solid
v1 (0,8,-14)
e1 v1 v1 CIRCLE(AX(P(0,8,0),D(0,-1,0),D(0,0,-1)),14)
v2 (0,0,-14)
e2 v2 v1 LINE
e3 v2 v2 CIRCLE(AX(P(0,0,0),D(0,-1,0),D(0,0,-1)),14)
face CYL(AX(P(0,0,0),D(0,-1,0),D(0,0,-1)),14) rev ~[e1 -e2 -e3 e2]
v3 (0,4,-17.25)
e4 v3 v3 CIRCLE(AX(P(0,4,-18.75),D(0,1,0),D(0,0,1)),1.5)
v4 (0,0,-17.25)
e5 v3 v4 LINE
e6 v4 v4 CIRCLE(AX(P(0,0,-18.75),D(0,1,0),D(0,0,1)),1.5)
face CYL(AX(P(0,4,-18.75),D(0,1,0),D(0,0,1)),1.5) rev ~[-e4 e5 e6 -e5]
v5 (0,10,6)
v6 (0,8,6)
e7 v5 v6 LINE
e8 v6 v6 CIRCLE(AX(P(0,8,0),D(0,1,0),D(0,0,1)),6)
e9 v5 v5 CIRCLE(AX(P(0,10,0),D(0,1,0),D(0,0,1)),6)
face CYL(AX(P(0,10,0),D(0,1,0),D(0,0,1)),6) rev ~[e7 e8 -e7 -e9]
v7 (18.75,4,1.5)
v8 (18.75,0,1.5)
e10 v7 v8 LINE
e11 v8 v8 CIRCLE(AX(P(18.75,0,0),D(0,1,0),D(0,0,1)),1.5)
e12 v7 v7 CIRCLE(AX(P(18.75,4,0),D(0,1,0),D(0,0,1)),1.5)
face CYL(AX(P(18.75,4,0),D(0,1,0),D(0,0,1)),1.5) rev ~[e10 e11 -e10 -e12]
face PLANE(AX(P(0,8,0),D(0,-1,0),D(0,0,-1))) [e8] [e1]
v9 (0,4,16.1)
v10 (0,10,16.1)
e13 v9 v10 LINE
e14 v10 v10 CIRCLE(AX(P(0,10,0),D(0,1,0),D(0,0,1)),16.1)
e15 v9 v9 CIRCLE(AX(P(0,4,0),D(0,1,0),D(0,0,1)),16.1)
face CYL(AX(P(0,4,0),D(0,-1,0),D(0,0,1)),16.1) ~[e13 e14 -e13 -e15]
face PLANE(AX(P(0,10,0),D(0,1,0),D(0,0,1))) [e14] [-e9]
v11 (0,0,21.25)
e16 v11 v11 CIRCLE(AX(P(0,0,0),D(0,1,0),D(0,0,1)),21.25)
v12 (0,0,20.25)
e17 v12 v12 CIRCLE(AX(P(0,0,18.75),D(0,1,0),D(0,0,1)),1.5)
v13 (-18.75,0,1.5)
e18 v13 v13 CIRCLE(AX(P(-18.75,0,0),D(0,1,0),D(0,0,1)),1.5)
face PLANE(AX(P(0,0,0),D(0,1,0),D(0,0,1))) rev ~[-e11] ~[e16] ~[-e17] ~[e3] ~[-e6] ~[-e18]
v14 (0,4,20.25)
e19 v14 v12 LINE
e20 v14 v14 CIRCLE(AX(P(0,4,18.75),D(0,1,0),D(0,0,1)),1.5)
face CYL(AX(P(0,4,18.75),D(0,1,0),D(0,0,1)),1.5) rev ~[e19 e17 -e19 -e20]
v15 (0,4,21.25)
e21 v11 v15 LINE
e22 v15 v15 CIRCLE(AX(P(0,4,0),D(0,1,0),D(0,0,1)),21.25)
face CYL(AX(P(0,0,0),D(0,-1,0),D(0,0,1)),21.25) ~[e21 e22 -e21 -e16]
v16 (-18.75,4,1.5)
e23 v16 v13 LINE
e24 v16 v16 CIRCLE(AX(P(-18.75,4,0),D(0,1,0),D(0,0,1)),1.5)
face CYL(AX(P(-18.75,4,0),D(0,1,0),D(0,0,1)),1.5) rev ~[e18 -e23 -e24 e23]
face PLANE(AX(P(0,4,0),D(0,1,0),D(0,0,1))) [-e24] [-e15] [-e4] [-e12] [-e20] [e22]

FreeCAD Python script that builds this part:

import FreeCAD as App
import Part
import Sketcher

V = App.Vector

doc = App.newDocument("Part")
body = doc.addObject("PartDesign::Body", "Body")

# Sketch on XZ plane
sketch1 = body.newObject("Sketcher::SketchObject", "Sketch")
sketch1.AttachmentSupport = (doc.getObject("XZ_Plane"), [""])
sketch1.MapMode = "FlatFace"
sketch1.addGeometry(Part.Circle(V(0, 0, 0), V(0, 0, 1), 21), False)
sketch1.addConstraint(Sketcher.Constraint("Coincident", 0, 3, -1, 1))
sketch1.addConstraint(Sketcher.Constraint("Diameter", 0, 42.5))
pad1 = body.newObject("PartDesign::Pad", "Pad")
pad1.Profile = sketch1
pad1.Length = 4
pad1.Reversed = True

# Sketch on XZ plane
sketch2 = body.newObject("Sketcher::SketchObject", "Sketch001")
sketch2.AttachmentSupport = (doc.getObject("XZ_Plane"), [""])
sketch2.MapMode = "FlatFace"
sketch2.AttachmentOffset = App.Placement(V(0, 0, -4), App.Rotation())
sketch2.addGeometry(Part.Circle(V(0, 0, 0), V(0, 0, 1), 16), False)
sketch2.addConstraint(Sketcher.Constraint("Coincident", 0, 3, -1, 1))
sketch2.addConstraint(Sketcher.Constraint("Diameter", 0, 32.2))
pad2 = body.newObject("PartDesign::Pad", "Pad001")
pad2.Profile = sketch2
pad2.Length = 6
pad2.Reversed = True

# Sketch on XZ plane
sketch3 = body.newObject("Sketcher::SketchObject", "Sketch002")
sketch3.AttachmentSupport = (doc.getObject("XZ_Plane"), [""])
sketch3.MapMode = "FlatFace"
sketch3.addGeometry(Part.Circle(V(0, 0, 0), V(0, 0, 1), 14), False)
sketch3.addConstraint(Sketcher.Constraint("Coincident", 0, 3, -1, 1))
sketch3.addConstraint(Sketcher.Constraint("Diameter", 0, 28.0))
pocket1 = body.newObject("PartDesign::Pocket", "Pocket")
pocket1.Profile = sketch3
pocket1.Length = 8

# Sketch on XZ plane
sketch4 = body.newObject("Sketcher::SketchObject", "Sketch003")
sketch4.AttachmentSupport = (doc.getObject("XZ_Plane"), [""])
sketch4.MapMode = "FlatFace"
sketch4.AttachmentOffset = App.Placement(V(0, 0, -10), App.Rotation())
sketch4.addGeometry(Part.Circle(V(0, 0, 0), V(0, 0, 1), 6), False)
sketch4.addConstraint(Sketcher.Constraint("Coincident", 0, 3, -1, 1))
sketch4.addConstraint(Sketcher.Constraint("Diameter", 0, 12.0))
pocket2 = body.newObject("PartDesign::Pocket", "Pocket001")
pocket2.Profile = sketch4
pocket2.Type = "ThroughAll"
pocket2.Reversed = True

# Sketch on XZ plane
sketch5 = body.newObject("Sketcher::SketchObject", "Sketch004")
sketch5.AttachmentSupport = (doc.getObject("XZ_Plane"), [""])
sketch5.MapMode = "FlatFace"
sketch5.AttachmentOffset = App.Placement(V(0, 0, -4), App.Rotation())
sketch5.addGeometry(Part.Circle(V(0, -18.8, 0), V(0, 0, 1), 1.5), False)
sketch5.addGeometry(Part.Circle(V(18.8, 0, 0), V(0, 0, 1), 1.5), False)
sketch5.addGeometry(Part.Circle(V(0, 18.8, 0), V(0, 0, 1), 1.5), False)
sketch5.addGeometry(Part.Circle(V(-18.8, 0, 0), V(0, 0, 1), 1.5), False)
sketch5.addConstraint(Sketcher.Constraint("Equal", 0, 1))
sketch5.addConstraint(Sketcher.Constraint("Equal", 1, 2))
sketch5.addConstraint(Sketcher.Constraint("Equal", 2, 3))
sketch5.addConstraint(Sketcher.Constraint("Symmetric", 0, 3, 2, 3, -1, 1))
sketch5.addConstraint(Sketcher.Constraint("Symmetric", 1, 3, 3, 3, -1, 1))
sketch5.addConstraint(Sketcher.Constraint("PointOnObject", 0, 3, -2))
sketch5.addConstraint(Sketcher.Constraint("PointOnObject", 1, 3, -1))
sketch5.addConstraint(Sketcher.Constraint("Diameter", 0, 3.0))
sketch5.addConstraint(Sketcher.Constraint("DistanceY", 0, 3, 2, 3, 37.5))
sketch5.addConstraint(Sketcher.Constraint("DistanceX", 3, 3, 1, 3, 37.5))
pocket3 = body.newObject("PartDesign::Pocket", "Pocket002")
pocket3.Profile = sketch5
pocket3.Length = 10
pocket3.Reversed = True

doc.recompute()
